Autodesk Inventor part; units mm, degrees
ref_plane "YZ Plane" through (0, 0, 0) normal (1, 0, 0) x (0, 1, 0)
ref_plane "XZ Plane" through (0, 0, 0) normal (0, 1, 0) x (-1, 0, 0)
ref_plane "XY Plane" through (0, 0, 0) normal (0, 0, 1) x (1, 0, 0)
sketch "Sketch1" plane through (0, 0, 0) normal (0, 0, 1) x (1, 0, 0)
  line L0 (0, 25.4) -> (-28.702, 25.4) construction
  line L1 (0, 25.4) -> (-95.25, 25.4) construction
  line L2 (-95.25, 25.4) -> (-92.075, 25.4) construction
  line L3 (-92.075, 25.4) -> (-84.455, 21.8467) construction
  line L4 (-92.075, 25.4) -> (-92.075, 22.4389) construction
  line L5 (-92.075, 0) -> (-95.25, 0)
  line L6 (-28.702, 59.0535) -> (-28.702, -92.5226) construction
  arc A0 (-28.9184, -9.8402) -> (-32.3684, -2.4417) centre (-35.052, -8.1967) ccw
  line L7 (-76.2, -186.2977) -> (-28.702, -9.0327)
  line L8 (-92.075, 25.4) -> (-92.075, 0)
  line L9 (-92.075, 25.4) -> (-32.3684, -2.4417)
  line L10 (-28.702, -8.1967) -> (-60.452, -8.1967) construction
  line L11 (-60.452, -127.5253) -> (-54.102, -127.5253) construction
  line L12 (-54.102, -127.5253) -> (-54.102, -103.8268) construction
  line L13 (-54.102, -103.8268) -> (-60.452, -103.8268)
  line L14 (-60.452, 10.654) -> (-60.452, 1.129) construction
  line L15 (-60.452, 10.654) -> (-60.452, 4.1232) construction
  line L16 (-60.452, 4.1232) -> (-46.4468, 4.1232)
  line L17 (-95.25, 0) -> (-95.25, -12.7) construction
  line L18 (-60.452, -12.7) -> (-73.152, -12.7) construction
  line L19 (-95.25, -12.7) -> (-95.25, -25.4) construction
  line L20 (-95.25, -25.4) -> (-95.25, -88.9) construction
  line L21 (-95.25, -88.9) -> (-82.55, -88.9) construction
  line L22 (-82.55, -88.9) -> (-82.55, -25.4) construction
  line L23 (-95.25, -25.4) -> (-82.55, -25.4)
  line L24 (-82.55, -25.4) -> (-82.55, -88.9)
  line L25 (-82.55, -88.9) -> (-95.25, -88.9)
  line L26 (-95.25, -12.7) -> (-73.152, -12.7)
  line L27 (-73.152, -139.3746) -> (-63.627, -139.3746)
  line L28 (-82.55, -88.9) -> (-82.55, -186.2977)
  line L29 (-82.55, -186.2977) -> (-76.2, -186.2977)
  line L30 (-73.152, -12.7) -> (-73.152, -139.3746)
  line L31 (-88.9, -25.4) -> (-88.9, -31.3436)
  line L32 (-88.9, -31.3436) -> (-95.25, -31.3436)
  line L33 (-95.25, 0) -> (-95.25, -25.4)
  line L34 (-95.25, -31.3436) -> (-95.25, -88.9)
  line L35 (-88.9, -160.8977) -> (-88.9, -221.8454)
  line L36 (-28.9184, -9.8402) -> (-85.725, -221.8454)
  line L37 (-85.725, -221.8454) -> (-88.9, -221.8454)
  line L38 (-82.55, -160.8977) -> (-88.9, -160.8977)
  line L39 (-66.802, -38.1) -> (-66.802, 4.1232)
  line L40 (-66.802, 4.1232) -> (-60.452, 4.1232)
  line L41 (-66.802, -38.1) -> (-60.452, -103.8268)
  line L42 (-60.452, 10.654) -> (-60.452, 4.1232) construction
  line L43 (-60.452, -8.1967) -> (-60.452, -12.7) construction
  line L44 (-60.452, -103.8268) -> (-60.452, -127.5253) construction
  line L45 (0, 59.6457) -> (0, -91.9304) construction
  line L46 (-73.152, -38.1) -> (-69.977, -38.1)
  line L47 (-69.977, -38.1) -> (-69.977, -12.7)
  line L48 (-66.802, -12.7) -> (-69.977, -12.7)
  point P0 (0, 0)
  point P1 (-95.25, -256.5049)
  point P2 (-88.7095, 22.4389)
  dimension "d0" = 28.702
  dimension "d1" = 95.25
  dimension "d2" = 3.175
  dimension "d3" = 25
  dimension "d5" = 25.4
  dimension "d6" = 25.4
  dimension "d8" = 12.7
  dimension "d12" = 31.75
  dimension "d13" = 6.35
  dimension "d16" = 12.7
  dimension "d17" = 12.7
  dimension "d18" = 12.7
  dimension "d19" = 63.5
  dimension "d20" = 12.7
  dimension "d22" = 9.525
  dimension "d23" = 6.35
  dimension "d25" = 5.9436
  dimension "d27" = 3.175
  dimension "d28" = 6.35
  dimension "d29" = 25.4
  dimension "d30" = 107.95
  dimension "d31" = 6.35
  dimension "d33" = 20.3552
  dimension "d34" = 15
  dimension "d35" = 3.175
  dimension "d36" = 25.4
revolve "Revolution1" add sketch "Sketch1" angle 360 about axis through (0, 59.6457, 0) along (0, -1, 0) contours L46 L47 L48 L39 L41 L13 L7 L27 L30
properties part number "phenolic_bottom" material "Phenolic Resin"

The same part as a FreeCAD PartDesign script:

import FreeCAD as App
import Part
import Sketcher

V = App.Vector
Q = App.Units.Quantity


def add_polygon(sketch, points):
    """Adds a closed chain of lines whose ends are joined by coincident constraints."""
    first, n = sketch.GeometryCount, len(points)
    for a, b in zip(points, points[1:] + points[:1]):
        sketch.addGeometry(Part.LineSegment(App.Vector(*a, 0), App.Vector(*b, 0)), False)
    for i in range(n):
        sketch.addConstraint(Sketcher.Constraint("Coincident", first + i, 2, first + (i + 1) % n, 1))

doc = App.newDocument("Part")
body = doc.addObject("PartDesign::Body", "Body")

# Sketch on XY plane
sketch1 = body.newObject("Sketcher::SketchObject", "Sketch")
sketch1.AttachmentSupport = (doc.getObject("XY_Plane"), [""])
sketch1.MapMode = "FlatFace"
add_polygon(sketch1, [(-70, -38.1), (-73.2, -38.1), (-73.2, -139.4), (-63.6, -139.4), (-54.1, -103.8), (-60.5, -103.8), (-66.8, -38.1), (-66.8, -12.7), (-70, -12.7)])  # lines 0-8
sketch1.addConstraint(Sketcher.Constraint("Horizontal", 0))
sketch1.addConstraint(Sketcher.Constraint("Vertical", 1))
sketch1.addConstraint(Sketcher.Constraint("Horizontal", 2))
sketch1.addConstraint(Sketcher.Constraint("Horizontal", 4))
sketch1.addConstraint(Sketcher.Constraint("Vertical", 6))
sketch1.addConstraint(Sketcher.Constraint("Horizontal", 7))
sketch1.addConstraint(Sketcher.Constraint("Vertical", 8))
sketch1.addConstraint(Sketcher.Constraint("Horizontal", 0, 2, 5, 2))
sketch1.addConstraint(Sketcher.Constraint("Equal", 0, 7))
sketch1.addConstraint(Sketcher.Constraint("DistanceY", 6, 1, 6, 2, Q("1 in")))
sketch1.addConstraint(Sketcher.Constraint("DistanceX", 4, 2, 4, 1, Q("0.25 in")))
sketch1.addConstraint(Sketcher.Constraint("DistanceY", 6, 2, -1, 1, Q("0.5 in")))
sketch1.addConstraint(Sketcher.Constraint("DistanceX", 1, 2, 4, 2, Q("0.5 in")))
sketch1.addConstraint(Sketcher.Constraint("DistanceX", 5, 2, 3, 2, Q("0.5 in")))
sketch1.addConstraint(Sketcher.Constraint("DistanceX", 2, 1, 2, 2, Q("0.375 in")))
sketch1.addConstraint(Sketcher.Constraint("Angle", 3, Q("75 deg")))
sketch1.addConstraint(Sketcher.Constraint("DistanceX", 0, 2, -1, 1, Q("2.88 in")))
sketch1.addConstraint(Sketcher.Constraint("DistanceY", 1, 2, 1, 1, Q("3.9872 in")))
revolution = body.newObject("PartDesign::Revolution", "Revolution")
revolution.Profile = sketch1
revolution.ReferenceAxis = (sketch1, ["V_Axis"])
revolution.Angle = 360

doc.recompute()
